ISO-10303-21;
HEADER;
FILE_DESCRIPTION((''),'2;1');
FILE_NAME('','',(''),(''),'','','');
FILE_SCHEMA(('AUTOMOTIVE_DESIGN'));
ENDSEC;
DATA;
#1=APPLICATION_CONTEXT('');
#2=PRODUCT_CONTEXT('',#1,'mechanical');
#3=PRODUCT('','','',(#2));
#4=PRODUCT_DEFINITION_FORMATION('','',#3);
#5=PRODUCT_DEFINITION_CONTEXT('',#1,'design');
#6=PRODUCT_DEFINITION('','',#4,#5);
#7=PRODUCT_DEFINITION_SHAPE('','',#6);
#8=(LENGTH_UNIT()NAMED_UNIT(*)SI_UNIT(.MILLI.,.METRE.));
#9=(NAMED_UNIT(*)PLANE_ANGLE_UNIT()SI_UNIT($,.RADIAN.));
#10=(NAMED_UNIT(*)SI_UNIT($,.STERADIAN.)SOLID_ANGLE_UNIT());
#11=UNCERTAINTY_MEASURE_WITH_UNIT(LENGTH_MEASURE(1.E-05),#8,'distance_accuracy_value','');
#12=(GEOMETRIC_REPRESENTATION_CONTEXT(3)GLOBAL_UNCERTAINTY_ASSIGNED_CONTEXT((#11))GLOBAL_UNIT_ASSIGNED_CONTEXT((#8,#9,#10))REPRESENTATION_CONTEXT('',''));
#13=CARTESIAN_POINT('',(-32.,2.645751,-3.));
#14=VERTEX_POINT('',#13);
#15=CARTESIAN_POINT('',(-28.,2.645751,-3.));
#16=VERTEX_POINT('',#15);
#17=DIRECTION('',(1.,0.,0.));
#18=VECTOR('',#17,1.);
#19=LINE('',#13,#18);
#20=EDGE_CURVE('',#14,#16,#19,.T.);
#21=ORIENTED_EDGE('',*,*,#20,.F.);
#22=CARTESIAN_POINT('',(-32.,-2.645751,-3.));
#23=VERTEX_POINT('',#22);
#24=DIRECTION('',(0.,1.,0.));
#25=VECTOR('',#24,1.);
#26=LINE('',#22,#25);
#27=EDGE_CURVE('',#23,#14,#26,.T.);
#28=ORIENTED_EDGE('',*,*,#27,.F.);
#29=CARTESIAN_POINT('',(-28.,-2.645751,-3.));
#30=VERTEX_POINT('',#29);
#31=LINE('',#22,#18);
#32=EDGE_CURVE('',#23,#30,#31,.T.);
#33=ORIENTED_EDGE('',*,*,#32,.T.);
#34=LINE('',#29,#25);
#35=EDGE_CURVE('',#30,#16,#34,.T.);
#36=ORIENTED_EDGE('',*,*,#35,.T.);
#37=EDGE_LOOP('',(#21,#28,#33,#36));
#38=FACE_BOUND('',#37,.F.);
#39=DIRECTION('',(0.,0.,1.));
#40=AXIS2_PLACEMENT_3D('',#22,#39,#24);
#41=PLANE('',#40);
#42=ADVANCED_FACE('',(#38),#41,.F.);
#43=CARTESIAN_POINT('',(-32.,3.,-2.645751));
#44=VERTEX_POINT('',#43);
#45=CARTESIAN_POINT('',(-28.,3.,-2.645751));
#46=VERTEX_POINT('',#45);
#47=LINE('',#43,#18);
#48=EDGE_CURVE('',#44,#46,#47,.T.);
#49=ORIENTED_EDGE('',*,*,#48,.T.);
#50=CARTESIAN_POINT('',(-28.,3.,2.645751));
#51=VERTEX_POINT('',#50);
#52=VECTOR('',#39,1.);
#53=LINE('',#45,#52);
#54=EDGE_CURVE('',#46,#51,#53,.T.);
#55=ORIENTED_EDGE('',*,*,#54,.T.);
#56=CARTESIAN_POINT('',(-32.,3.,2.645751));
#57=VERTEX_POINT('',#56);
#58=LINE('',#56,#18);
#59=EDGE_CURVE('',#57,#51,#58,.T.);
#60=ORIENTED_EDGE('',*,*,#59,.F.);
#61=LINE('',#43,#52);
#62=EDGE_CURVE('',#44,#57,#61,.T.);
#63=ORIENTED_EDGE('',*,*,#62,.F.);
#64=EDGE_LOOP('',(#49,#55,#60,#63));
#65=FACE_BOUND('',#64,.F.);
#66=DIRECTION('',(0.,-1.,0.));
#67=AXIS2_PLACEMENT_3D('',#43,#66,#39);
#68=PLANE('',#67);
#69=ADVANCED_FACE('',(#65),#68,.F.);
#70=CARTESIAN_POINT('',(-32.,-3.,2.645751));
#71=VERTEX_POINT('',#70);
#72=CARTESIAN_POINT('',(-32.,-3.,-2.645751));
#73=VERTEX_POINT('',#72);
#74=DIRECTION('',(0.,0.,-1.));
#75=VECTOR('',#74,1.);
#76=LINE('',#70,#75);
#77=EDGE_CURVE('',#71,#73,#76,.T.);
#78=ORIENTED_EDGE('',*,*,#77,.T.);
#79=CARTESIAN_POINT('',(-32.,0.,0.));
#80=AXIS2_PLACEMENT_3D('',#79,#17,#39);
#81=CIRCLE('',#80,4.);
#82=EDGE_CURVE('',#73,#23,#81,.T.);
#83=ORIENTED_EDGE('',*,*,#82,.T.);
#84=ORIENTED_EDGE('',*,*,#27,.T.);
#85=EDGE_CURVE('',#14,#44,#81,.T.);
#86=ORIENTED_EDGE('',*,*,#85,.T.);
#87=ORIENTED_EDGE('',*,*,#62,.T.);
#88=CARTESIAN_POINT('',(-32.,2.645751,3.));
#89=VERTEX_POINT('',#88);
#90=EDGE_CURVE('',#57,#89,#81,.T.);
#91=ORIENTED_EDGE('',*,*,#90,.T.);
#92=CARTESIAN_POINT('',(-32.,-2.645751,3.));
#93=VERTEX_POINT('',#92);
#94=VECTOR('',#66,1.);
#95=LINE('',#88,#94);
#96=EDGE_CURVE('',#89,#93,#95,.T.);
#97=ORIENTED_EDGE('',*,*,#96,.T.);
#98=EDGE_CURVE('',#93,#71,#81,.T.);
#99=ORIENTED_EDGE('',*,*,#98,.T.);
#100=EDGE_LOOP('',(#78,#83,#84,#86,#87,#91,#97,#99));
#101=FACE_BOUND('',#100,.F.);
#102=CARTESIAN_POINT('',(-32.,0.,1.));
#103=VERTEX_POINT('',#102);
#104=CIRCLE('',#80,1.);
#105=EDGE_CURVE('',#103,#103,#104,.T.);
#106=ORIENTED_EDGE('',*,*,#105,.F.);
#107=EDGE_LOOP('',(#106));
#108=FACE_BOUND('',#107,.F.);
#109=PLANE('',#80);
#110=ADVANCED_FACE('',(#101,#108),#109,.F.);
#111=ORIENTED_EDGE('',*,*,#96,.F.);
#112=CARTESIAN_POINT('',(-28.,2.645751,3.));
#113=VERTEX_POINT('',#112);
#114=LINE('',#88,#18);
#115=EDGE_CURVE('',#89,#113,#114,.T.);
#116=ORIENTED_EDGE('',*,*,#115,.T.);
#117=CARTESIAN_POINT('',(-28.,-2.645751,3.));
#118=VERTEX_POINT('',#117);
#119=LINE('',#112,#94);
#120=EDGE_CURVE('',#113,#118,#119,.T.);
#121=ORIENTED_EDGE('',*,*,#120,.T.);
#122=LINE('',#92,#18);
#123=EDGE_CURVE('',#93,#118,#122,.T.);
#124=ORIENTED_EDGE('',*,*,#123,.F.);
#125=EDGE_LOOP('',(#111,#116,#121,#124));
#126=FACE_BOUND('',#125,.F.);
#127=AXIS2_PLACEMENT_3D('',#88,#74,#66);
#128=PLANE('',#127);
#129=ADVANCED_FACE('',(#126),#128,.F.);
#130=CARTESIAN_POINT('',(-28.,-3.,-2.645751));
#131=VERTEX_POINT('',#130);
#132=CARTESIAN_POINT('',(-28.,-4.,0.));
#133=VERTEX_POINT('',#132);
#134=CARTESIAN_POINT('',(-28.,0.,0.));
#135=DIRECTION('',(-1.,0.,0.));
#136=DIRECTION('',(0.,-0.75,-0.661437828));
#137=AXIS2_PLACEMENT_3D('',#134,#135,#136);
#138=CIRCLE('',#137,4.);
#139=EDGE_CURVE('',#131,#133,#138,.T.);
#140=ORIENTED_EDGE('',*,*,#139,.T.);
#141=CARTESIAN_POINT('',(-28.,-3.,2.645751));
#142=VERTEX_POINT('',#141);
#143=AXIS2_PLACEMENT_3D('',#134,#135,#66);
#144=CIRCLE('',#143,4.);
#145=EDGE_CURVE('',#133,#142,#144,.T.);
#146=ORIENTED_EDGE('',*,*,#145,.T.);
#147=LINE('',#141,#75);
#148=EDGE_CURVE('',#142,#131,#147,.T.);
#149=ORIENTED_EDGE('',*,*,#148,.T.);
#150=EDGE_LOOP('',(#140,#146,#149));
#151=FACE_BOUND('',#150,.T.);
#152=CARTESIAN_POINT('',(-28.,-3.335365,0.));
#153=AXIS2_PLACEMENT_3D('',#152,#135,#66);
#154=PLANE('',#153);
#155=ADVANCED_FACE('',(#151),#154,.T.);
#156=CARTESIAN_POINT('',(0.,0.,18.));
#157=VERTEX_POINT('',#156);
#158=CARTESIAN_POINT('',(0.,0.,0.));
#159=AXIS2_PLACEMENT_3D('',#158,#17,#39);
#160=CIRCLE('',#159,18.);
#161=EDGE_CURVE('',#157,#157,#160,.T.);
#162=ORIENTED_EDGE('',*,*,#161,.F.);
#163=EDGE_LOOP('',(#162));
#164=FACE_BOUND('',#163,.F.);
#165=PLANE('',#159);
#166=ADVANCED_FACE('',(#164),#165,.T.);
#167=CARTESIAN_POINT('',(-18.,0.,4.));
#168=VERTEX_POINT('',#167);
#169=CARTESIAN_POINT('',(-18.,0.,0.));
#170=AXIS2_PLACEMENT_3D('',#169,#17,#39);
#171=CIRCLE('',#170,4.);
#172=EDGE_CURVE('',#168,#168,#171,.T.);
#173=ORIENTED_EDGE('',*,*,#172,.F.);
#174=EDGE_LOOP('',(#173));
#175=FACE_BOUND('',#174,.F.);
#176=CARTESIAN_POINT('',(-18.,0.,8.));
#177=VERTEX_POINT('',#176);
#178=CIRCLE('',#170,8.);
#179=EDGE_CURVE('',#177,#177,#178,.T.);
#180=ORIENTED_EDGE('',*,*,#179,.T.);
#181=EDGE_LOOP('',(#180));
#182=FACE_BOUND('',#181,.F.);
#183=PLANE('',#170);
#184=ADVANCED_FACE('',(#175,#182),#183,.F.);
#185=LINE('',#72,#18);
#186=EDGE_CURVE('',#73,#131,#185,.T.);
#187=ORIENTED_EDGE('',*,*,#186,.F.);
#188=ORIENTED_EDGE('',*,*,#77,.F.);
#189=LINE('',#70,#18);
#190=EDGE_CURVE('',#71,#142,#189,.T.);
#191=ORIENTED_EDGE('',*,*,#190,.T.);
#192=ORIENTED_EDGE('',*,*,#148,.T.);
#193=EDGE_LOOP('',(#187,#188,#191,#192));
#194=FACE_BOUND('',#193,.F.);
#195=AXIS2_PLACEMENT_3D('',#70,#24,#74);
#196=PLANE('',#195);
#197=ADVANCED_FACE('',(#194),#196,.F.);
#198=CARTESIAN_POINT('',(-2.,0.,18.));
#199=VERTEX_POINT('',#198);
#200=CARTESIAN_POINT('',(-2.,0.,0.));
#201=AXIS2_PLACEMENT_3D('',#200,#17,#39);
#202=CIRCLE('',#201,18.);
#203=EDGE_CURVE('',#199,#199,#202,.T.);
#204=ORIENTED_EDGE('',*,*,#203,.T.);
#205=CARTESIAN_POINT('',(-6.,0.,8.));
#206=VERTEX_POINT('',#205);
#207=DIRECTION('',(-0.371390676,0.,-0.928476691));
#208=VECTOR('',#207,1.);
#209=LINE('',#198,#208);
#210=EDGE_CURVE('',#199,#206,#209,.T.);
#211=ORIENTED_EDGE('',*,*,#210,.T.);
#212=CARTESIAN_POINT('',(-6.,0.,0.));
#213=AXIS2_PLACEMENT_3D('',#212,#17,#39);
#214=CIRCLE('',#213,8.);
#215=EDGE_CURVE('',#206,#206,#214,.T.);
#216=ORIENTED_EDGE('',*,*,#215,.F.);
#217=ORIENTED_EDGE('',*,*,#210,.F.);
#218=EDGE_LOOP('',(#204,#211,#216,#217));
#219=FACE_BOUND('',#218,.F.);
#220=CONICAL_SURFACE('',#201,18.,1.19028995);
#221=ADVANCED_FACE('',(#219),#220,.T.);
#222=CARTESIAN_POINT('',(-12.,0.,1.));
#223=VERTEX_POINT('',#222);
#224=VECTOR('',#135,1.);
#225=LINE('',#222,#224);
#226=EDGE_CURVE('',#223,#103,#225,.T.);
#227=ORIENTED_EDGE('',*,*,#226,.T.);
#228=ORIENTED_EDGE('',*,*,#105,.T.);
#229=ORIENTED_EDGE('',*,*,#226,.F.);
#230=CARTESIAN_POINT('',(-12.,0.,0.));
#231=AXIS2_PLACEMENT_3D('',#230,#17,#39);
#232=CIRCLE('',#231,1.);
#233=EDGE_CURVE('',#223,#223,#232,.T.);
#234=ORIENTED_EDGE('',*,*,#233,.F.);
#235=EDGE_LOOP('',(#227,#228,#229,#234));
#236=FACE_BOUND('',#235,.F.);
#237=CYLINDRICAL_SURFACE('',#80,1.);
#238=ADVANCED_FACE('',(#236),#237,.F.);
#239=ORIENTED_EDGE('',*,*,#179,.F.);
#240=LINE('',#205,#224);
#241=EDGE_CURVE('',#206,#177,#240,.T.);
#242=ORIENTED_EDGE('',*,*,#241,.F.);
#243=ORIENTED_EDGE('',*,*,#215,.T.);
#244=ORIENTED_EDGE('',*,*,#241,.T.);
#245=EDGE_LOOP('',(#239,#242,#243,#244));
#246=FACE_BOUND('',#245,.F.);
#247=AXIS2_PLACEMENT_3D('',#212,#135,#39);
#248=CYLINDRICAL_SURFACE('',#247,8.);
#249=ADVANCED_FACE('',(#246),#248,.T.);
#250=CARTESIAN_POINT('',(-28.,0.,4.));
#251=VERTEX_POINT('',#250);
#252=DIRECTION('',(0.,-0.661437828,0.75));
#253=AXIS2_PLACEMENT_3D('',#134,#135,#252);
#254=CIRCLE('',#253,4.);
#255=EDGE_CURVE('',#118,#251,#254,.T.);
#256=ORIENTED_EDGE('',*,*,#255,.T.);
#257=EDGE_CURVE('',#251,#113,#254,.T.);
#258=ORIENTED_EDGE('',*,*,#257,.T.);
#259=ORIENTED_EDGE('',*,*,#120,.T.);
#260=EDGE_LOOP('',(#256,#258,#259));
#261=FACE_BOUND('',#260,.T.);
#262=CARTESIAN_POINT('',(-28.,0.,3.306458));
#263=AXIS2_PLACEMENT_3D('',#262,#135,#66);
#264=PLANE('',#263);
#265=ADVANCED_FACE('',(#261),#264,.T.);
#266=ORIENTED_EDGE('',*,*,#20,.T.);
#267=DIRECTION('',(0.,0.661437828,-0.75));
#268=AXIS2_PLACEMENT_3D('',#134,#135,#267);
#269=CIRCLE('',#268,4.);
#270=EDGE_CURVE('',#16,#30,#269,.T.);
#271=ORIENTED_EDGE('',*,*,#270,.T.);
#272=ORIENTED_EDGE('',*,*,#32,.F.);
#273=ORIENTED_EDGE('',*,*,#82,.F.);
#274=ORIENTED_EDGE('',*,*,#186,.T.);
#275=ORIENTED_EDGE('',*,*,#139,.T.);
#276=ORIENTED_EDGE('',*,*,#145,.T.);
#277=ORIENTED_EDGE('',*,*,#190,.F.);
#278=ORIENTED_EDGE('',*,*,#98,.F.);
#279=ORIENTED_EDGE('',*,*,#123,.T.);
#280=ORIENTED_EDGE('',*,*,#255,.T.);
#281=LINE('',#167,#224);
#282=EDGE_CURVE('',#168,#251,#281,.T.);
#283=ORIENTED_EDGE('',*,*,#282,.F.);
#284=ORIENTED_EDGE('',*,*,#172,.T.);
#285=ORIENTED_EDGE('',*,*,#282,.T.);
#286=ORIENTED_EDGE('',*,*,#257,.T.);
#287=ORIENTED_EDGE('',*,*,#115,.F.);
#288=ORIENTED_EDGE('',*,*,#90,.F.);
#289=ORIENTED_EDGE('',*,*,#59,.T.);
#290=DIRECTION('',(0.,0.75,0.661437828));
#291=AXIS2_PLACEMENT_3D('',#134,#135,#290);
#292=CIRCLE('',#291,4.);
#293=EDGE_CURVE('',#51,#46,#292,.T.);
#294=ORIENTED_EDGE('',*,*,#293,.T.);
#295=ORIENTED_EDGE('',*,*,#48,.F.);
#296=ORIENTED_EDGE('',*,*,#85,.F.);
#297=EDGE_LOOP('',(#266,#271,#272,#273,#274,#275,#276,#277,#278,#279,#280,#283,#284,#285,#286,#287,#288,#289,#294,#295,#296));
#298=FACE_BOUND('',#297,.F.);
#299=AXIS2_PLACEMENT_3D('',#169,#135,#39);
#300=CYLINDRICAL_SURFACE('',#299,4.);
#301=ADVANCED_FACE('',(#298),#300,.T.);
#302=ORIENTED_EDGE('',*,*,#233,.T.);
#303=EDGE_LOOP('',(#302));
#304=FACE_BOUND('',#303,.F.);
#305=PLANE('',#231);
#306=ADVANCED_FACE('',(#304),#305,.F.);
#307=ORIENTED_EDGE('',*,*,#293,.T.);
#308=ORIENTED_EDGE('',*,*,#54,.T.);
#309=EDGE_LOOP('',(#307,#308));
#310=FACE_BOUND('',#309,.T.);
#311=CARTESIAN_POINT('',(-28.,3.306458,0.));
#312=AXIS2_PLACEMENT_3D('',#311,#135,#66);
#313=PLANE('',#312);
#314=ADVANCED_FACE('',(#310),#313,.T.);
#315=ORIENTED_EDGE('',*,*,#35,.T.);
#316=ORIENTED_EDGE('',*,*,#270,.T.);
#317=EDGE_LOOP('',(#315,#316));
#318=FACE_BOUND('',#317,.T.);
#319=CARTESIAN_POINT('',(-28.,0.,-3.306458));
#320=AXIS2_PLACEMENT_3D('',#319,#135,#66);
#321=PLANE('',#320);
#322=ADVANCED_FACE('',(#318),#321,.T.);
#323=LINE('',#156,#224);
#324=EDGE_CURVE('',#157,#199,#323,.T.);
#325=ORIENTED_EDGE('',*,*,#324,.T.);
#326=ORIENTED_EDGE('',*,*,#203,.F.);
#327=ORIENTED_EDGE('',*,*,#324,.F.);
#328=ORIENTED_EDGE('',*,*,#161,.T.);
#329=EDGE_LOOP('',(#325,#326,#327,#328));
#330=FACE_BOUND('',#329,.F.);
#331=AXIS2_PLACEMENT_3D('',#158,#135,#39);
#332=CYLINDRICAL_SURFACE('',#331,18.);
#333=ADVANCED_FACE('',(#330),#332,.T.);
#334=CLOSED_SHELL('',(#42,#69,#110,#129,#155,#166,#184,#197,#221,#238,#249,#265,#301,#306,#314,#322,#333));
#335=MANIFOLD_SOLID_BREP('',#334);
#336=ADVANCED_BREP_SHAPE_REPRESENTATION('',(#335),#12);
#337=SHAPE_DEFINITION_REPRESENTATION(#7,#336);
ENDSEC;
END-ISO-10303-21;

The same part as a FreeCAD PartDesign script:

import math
import FreeCAD as App
import Part
import Sketcher
from FreeCAD import Vector

doc = App.newDocument("Part")
params = doc.addObject("Spreadsheet::Sheet", "Params")
for row, (alias, value) in enumerate([
    ("sketch1_width", "12 mm"),
    ("sketch1_width2", "14 mm"),
    ("sketch1_width3", "20 mm"),
    ("sketch1_width4", "2 mm"),
    ("sketch1_height", "4 mm"),
    ("revolution_angle", "360 deg"),
    ("sketch2_diameter", "2 mm"),
    ("sketch2_radius", "4 mm"),
    ("pocket1_length", "4 mm"),
], start=1):
    params.set(f"A{row}", alias)
    params.set(f"B{row}", "=" + value)
    params.setAlias(f"B{row}", alias)

body = doc.addObject("PartDesign::Body", "Body")

sketch1 = body.newObject("Sketcher::SketchObject", "Sketch")
sketch1.AttachmentSupport = (doc.getObject("XZ_Plane"), [""])
sketch1.MapMode = "FlatFace"
sketch1.addGeometry([
    Part.LineSegment(Vector(-6, 8, 0), Vector(-18, 8, 0)),
    Part.LineSegment(Vector(-18, 8, 0), Vector(-18, 4, 0)),
    Part.LineSegment(Vector(-18, 4, 0), Vector(-32, 4, 0)),
    Part.LineSegment(Vector(-32, 4, 0), Vector(-32, 1, 0)),
    Part.LineSegment(Vector(-32, 1, 0), Vector(-12, 1, 0)),
    Part.LineSegment(Vector(-12, 1, 0), Vector(-12, 0, 0)),
    Part.LineSegment(Vector(-12, 0, 0), Vector(0, 0, 0)),
    Part.LineSegment(Vector(0, 0, 0), Vector(0, 18, 0)),
    Part.LineSegment(Vector(0, 18, 0), Vector(-2, 18, 0)),
    Part.LineSegment(Vector(-2, 18, 0), Vector(-6, 8, 0)),
], False)
sketch1.addConstraint([
    Sketcher.Constraint("Coincident", 0, 2, 1, 1),
    Sketcher.Constraint("Coincident", 1, 2, 2, 1),
    Sketcher.Constraint("Coincident", 2, 2, 3, 1),
    Sketcher.Constraint("Coincident", 3, 2, 4, 1),
    Sketcher.Constraint("Coincident", 4, 2, 5, 1),
    Sketcher.Constraint("Coincident", 5, 2, 6, 1),
    Sketcher.Constraint("Coincident", 6, 2, 7, 1),
    Sketcher.Constraint("Coincident", 7, 2, 8, 1),
    Sketcher.Constraint("Coincident", 8, 2, 9, 1),
    Sketcher.Constraint("Coincident", 9, 2, 0, 1),
    Sketcher.Constraint("Horizontal", 0),
    Sketcher.Constraint("Vertical", 1),
    Sketcher.Constraint("Horizontal", 2),
    Sketcher.Constraint("Vertical", 3),
    Sketcher.Constraint("Horizontal", 4),
    Sketcher.Constraint("Vertical", 5),
    Sketcher.Constraint("Horizontal", 6),
    Sketcher.Constraint("Vertical", 7),
    Sketcher.Constraint("Horizontal", 8),
    Sketcher.Constraint("Coincident", 6, 2, -1, 1),
    Sketcher.Constraint("Equal", 0, 6),
    Sketcher.Constraint("DistanceX", 0, 2, 0, 1, 12.0),
    Sketcher.Constraint("DistanceX", 2, 2, 2, 1, 14.0),
    Sketcher.Constraint("DistanceX", 4, 1, 4, 2, 20.0),
    Sketcher.Constraint("DistanceX", 8, 2, 8, 1, 2.0),
    Sketcher.Constraint("DistanceY", 1, 2, 1, 1, 4.0),
    Sketcher.Constraint("DistanceY", 3, 2, 3, 1, 3.0),
    Sketcher.Constraint("DistanceY", 5, 2, 5, 1, 1.0),
    Sketcher.Constraint("DistanceY", 7, 1, 7, 2, 18.0),
])
sketch1.setExpression("Constraints[21]", "Params.sketch1_width")
sketch1.setExpression("Constraints[22]", "Params.sketch1_width2")
sketch1.setExpression("Constraints[23]", "Params.sketch1_width3")
sketch1.setExpression("Constraints[24]", "Params.sketch1_width4")
sketch1.setExpression("Constraints[25]", "Params.sketch1_height")
revolution = body.newObject("PartDesign::Revolution", "Revolution")
revolution.Profile = sketch1
revolution.ReferenceAxis = (sketch1, ["H_Axis"])
revolution.setExpression("Angle", "Params.revolution_angle")

sketch2 = body.newObject("Sketcher::SketchObject", "Sketch001")
sketch2.AttachmentSupport = (doc.getObject("YZ_Plane"), [""])
sketch2.MapMode = "FlatFace"
sketch2.AttachmentOffset = App.Placement(Vector(0, 0, -32), App.Rotation())
sketch2.addGeometry([
    Part.Circle(Vector(0, 0, 0), Vector(0, 0, 1), 1),
    Part.ArcOfCircle(Part.Circle(Vector(0, 0, 0), Vector(0, 0, 1), 4), math.radians(48.590378), math.radians(131.409622)),
    Part.LineSegment(Vector(2.645751, 3, 0), Vector(-2.645751, 3, 0)),
    Part.ArcOfCircle(Part.Circle(Vector(0, 0, 0), Vector(0, 0, 1), 4), math.radians(138.590378), math.radians(180)),
    Part.LineSegment(Vector(-3, 2.645751, 0), Vector(-3, -2.645751, 0)),
    Part.ArcOfCircle(Part.Circle(Vector(0, 0, 0), Vector(0, 0, 1), 4), math.radians(180), math.radians(221.409622)),
    Part.LineSegment(Vector(-2.645751, -3, 0), Vector(2.645751, -3, 0)),
    Part.ArcOfCircle(Part.Circle(Vector(0, 0, 0), Vector(0, 0, 1), 4), math.radians(-131.409622), math.radians(-48.590378)),
    Part.LineSegment(Vector(3, -2.645751, 0), Vector(3, 2.645751, 0)),
    Part.ArcOfCircle(Part.Circle(Vector(0, 0, 0), Vector(0, 0, 1), 4), math.radians(-41.409622), math.radians(41.409622)),
], False)
sketch2.addConstraint([
    Sketcher.Constraint("Coincident", 1, 1, 2, 1),
    Sketcher.Constraint("Coincident", 2, 2, 1, 2),
    Sketcher.Constraint("Coincident", 3, 1, 4, 1),
    Sketcher.Constraint("Coincident", 4, 2, 5, 2),
    Sketcher.Constraint("Tangent", 5, 1, 3, 2),
    Sketcher.Constraint("Coincident", 6, 1, 7, 1),
    Sketcher.Constraint("Coincident", 7, 2, 6, 2),
    Sketcher.Constraint("Coincident", 8, 1, 9, 1),
    Sketcher.Constraint("Coincident", 9, 2, 8, 2),
    Sketcher.Constraint("Horizontal", 2),
    Sketcher.Constraint("Vertical", 4),
    Sketcher.Constraint("Horizontal", 6),
    Sketcher.Constraint("Vertical", 8),
    Sketcher.Constraint("Coincident", 0, 3, -1, 1),
    Sketcher.Constraint("Coincident", 1, 3, -1, 1),
    Sketcher.Constraint("Coincident", 3, 3, -1, 1),
    Sketcher.Constraint("Coincident", 7, 3, -1, 1),
    Sketcher.Constraint("Coincident", 9, 3, -1, 1),
    Sketcher.Constraint("Equal", 1, 3),
    Sketcher.Constraint("Equal", 3, 5),
    Sketcher.Constraint("Equal", 5, 7),
    Sketcher.Constraint("Equal", 7, 9),
    Sketcher.Constraint("PointOnObject", 5, 1, -1),
    Sketcher.Constraint("Horizontal", 4, 2, 8, 1),
    Sketcher.Constraint("Vertical", 2, 2, 6, 1),
    Sketcher.Constraint("Equal", 6, 4),
    Sketcher.Constraint("Diameter", 0, 2.0),
    Sketcher.Constraint("Radius", 1, 4.0),
    Sketcher.Constraint("DistanceY", -1, 1, 1, 1, 3.0),
])
sketch2.setExpression("Constraints[26]", "Params.sketch2_diameter")
sketch2.setExpression("Constraints[27]", "Params.sketch2_radius")
pocket1 = body.newObject("PartDesign::Pocket", "Pocket")
pocket1.Profile = sketch2
pocket1.setExpression("Length", "Params.pocket1_length")
pocket1.Reversed = True

doc.recompute()
